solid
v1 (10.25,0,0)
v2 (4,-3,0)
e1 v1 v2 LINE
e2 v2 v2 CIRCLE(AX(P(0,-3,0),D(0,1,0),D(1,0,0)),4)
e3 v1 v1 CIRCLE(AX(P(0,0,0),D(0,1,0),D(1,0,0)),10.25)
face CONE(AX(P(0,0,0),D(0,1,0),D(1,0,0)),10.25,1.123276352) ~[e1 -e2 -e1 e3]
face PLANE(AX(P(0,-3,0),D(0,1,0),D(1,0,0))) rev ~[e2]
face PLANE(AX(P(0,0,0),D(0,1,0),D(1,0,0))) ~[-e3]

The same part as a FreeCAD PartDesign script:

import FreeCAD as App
import Part
import Sketcher


def add_polygon(sketch, points):
    """Adds a closed chain of lines whose ends are joined by coincident constraints."""
    first, n = sketch.GeometryCount, len(points)
    for a, b in zip(points, points[1:] + points[:1]):
        sketch.addGeometry(Part.LineSegment(App.Vector(*a, 0), App.Vector(*b, 0)), False)
    for i in range(n):
        sketch.addConstraint(Sketcher.Constraint("Coincident", first + i, 2, first + (i + 1) % n, 1))

doc = App.newDocument("Part")
body = doc.addObject("PartDesign::Body", "Body")

sketch1 = body.newObject("Sketcher::SketchObject", "Sketch")
sketch1.AttachmentSupport = (doc.getObject("XY_Plane"), [""])
sketch1.MapMode = "FlatFace"
add_polygon(sketch1, [(10.2, 0), (0, 0), (0, -3), (4, -3)])
sketch1.addConstraint([
    Sketcher.Constraint("Horizontal", 0),
    Sketcher.Constraint("Vertical", 1),
    Sketcher.Constraint("Horizontal", 2),
    Sketcher.Constraint("Coincident", 0, 2, -1, 1),
    Sketcher.Constraint("DistanceX", 2, 1, 2, 2, 4.0),
    Sketcher.Constraint("DistanceY", 1, 2, 1, 1, 3.0),
    Sketcher.Constraint("DistanceX", 0, 2, 0, 1, 10.25),
])
revolution = body.newObject("PartDesign::Revolution", "Revolution")
revolution.Profile = sketch1
revolution.ReferenceAxis = (sketch1, ["V_Axis"])
revolution.Angle = 360

doc.recompute()
